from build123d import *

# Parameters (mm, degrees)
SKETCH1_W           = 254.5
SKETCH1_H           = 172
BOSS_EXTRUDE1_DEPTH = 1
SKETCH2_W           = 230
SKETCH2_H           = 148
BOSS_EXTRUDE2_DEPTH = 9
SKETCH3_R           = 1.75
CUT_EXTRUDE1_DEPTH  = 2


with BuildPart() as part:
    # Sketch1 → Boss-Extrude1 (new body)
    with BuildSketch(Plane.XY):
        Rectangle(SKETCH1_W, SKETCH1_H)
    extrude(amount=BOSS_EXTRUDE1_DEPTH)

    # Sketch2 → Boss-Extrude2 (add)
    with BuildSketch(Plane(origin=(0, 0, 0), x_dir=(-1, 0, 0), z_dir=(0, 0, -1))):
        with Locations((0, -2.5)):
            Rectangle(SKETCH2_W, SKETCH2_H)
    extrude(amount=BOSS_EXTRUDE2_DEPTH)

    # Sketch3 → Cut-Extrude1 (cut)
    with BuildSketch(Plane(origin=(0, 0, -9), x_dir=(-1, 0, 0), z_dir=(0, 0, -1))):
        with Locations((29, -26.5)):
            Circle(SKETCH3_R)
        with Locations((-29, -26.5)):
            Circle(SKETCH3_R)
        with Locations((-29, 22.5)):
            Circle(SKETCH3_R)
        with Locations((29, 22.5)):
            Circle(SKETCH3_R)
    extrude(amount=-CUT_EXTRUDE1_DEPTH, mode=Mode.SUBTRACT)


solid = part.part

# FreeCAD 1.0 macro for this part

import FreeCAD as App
import Part
import Sketcher


def add_polygon(sketch, points):
    """Adds a closed chain of lines whose ends are joined by coincident constraints."""
    first, n = sketch.GeometryCount, len(points)
    for a, b in zip(points, points[1:] + points[:1]):
        sketch.addGeometry(Part.LineSegment(App.Vector(*a, 0), App.Vector(*b, 0)), False)
    for i in range(n):
        sketch.addConstraint(Sketcher.Constraint("Coincident", first + i, 2, first + (i + 1) % n, 1))

doc = App.newDocument("Part")
params = doc.addObject("Spreadsheet::Sheet", "Params")
for row, (alias, value) in enumerate([
    ("sketch1_height", "172 mm"),
    ("sketch1_width", "254.5 mm"),
    ("pad1_length", "1 mm"),
    ("sketch2_width", "230 mm"),
    ("sketch2_height", "148 mm"),
    ("pad2_length", "9 mm"),
    ("sketch3_diameter", "3.5 mm"),
    ("pocket1_length", "2 mm"),
], start=1):
    params.set(f"A{row}", alias)
    params.set(f"B{row}", "=" + value)
    params.setAlias(f"B{row}", alias)

body = doc.addObject("PartDesign::Body", "Body")

# Sketch on XY plane
sketch1 = body.newObject("Sketcher::SketchObject", "Sketch")
sketch1.AttachmentSupport = (doc.getObject("XY_Plane"), [""])
sketch1.MapMode = "FlatFace"
add_polygon(sketch1, [(-127.25, 86), (-127.25, -86), (127.25, -86), (127.25, 86)])  # lines 0-3
sketch1.addConstraint([
    Sketcher.Constraint("Vertical", 0),
    Sketcher.Constraint("Horizontal", 1),
    Sketcher.Constraint("Vertical", 2),
    Sketcher.Constraint("Horizontal", 3),
    Sketcher.Constraint("Symmetric", 0, 2, 2, 2, -1, 1),
    Sketcher.Constraint("DistanceY", 0, 2, 0, 1, 172.0),
    Sketcher.Constraint("DistanceX", 1, 1, 1, 2, 254.5),
])
sketch1.setExpression("Constraints[9]", "Params.sketch1_height")
sketch1.setExpression("Constraints[10]", "Params.sketch1_width")
pad1 = body.newObject("PartDesign::Pad", "Pad")
pad1.Profile = sketch1
pad1.setExpression("Length", "Params.pad1_length")

# Sketch on XY plane
sketch2 = body.newObject("Sketcher::SketchObject", "Sketch001")
sketch2.AttachmentSupport = (doc.getObject("XY_Plane"), [""])
sketch2.MapMode = "FlatFace"
add_polygon(sketch2, [(115, 71.5), (115, -76.5), (-115, -76.5), (-115, 71.5)])  # lines 0-3
sketch2.addConstraint([
    Sketcher.Constraint("Vertical", 0),
    Sketcher.Constraint("Horizontal", 1),
    Sketcher.Constraint("Vertical", 2),
    Sketcher.Constraint("Horizontal", 3),
    Sketcher.Constraint("DistanceX", 1, 2, 1, 1, 230.0),
    Sketcher.Constraint("DistanceY", 0, 2, 0, 1, 148.0),
    Sketcher.Constraint("DistanceX", -1, 1, 0, 2, 115.0),
    Sketcher.Constraint("DistanceY", 0, 2, -1, 1, 76.5),
])
sketch2.setExpression("Constraints[8]", "Params.sketch2_width")
sketch2.setExpression("Constraints[9]", "Params.sketch2_height")
pad2 = body.newObject("PartDesign::Pad", "Pad001")
pad2.Profile = sketch2
pad2.setExpression("Length", "Params.pad2_length")
pad2.Reversed = True

# Sketch on XY plane
sketch3 = body.newObject("Sketcher::SketchObject", "Sketch002")
sketch3.AttachmentSupport = (doc.getObject("XY_Plane"), [""])
sketch3.MapMode = "FlatFace"
sketch3.AttachmentOffset = App.Placement(App.Vector(0, 0, -9), App.Rotation())
sketch3.addGeometry([
    Part.Circle(App.Vector(-29, -26.5, 0), App.Vector(0, 0, 1), 1.75),
    Part.Circle(App.Vector(29, -26.5, 0), App.Vector(0, 0, 1), 1.75),
    Part.Circle(App.Vector(29, 22.5, 0), App.Vector(0, 0, 1), 1.75),
    Part.Circle(App.Vector(-29, 22.5, 0), App.Vector(0, 0, 1), 1.75),
], False)
sketch3.addConstraint([
    Sketcher.Constraint("Equal", 0, 1),
    Sketcher.Constraint("Equal", 1, 2),
    Sketcher.Constraint("Equal", 2, 3),
    Sketcher.Constraint("Symmetric", 0, 3, 1, 3, -2),
    Sketcher.Constraint("Symmetric", 2, 3, 3, 3, -2),
    Sketcher.Constraint("Vertical", 1, 3, 2, 3),
    Sketcher.Constraint("Diameter", 0, 3.5),
    Sketcher.Constraint("DistanceX", 0, 3, -1, 1, 29.0),
    Sketcher.Constraint("DistanceY", 1, 3, 2, 3, 49.0),
    Sketcher.Constraint("DistanceY", 0, 3, -1, 1, 26.5),
])
sketch3.setExpression("Constraints[6]", "Params.sketch3_diameter")
pocket1 = body.newObject("PartDesign::Pocket", "Pocket")
pocket1.Profile = sketch3
pocket1.setExpression("Length", "Params.pocket1_length")
pocket1.Reversed = True

doc.recompute()
